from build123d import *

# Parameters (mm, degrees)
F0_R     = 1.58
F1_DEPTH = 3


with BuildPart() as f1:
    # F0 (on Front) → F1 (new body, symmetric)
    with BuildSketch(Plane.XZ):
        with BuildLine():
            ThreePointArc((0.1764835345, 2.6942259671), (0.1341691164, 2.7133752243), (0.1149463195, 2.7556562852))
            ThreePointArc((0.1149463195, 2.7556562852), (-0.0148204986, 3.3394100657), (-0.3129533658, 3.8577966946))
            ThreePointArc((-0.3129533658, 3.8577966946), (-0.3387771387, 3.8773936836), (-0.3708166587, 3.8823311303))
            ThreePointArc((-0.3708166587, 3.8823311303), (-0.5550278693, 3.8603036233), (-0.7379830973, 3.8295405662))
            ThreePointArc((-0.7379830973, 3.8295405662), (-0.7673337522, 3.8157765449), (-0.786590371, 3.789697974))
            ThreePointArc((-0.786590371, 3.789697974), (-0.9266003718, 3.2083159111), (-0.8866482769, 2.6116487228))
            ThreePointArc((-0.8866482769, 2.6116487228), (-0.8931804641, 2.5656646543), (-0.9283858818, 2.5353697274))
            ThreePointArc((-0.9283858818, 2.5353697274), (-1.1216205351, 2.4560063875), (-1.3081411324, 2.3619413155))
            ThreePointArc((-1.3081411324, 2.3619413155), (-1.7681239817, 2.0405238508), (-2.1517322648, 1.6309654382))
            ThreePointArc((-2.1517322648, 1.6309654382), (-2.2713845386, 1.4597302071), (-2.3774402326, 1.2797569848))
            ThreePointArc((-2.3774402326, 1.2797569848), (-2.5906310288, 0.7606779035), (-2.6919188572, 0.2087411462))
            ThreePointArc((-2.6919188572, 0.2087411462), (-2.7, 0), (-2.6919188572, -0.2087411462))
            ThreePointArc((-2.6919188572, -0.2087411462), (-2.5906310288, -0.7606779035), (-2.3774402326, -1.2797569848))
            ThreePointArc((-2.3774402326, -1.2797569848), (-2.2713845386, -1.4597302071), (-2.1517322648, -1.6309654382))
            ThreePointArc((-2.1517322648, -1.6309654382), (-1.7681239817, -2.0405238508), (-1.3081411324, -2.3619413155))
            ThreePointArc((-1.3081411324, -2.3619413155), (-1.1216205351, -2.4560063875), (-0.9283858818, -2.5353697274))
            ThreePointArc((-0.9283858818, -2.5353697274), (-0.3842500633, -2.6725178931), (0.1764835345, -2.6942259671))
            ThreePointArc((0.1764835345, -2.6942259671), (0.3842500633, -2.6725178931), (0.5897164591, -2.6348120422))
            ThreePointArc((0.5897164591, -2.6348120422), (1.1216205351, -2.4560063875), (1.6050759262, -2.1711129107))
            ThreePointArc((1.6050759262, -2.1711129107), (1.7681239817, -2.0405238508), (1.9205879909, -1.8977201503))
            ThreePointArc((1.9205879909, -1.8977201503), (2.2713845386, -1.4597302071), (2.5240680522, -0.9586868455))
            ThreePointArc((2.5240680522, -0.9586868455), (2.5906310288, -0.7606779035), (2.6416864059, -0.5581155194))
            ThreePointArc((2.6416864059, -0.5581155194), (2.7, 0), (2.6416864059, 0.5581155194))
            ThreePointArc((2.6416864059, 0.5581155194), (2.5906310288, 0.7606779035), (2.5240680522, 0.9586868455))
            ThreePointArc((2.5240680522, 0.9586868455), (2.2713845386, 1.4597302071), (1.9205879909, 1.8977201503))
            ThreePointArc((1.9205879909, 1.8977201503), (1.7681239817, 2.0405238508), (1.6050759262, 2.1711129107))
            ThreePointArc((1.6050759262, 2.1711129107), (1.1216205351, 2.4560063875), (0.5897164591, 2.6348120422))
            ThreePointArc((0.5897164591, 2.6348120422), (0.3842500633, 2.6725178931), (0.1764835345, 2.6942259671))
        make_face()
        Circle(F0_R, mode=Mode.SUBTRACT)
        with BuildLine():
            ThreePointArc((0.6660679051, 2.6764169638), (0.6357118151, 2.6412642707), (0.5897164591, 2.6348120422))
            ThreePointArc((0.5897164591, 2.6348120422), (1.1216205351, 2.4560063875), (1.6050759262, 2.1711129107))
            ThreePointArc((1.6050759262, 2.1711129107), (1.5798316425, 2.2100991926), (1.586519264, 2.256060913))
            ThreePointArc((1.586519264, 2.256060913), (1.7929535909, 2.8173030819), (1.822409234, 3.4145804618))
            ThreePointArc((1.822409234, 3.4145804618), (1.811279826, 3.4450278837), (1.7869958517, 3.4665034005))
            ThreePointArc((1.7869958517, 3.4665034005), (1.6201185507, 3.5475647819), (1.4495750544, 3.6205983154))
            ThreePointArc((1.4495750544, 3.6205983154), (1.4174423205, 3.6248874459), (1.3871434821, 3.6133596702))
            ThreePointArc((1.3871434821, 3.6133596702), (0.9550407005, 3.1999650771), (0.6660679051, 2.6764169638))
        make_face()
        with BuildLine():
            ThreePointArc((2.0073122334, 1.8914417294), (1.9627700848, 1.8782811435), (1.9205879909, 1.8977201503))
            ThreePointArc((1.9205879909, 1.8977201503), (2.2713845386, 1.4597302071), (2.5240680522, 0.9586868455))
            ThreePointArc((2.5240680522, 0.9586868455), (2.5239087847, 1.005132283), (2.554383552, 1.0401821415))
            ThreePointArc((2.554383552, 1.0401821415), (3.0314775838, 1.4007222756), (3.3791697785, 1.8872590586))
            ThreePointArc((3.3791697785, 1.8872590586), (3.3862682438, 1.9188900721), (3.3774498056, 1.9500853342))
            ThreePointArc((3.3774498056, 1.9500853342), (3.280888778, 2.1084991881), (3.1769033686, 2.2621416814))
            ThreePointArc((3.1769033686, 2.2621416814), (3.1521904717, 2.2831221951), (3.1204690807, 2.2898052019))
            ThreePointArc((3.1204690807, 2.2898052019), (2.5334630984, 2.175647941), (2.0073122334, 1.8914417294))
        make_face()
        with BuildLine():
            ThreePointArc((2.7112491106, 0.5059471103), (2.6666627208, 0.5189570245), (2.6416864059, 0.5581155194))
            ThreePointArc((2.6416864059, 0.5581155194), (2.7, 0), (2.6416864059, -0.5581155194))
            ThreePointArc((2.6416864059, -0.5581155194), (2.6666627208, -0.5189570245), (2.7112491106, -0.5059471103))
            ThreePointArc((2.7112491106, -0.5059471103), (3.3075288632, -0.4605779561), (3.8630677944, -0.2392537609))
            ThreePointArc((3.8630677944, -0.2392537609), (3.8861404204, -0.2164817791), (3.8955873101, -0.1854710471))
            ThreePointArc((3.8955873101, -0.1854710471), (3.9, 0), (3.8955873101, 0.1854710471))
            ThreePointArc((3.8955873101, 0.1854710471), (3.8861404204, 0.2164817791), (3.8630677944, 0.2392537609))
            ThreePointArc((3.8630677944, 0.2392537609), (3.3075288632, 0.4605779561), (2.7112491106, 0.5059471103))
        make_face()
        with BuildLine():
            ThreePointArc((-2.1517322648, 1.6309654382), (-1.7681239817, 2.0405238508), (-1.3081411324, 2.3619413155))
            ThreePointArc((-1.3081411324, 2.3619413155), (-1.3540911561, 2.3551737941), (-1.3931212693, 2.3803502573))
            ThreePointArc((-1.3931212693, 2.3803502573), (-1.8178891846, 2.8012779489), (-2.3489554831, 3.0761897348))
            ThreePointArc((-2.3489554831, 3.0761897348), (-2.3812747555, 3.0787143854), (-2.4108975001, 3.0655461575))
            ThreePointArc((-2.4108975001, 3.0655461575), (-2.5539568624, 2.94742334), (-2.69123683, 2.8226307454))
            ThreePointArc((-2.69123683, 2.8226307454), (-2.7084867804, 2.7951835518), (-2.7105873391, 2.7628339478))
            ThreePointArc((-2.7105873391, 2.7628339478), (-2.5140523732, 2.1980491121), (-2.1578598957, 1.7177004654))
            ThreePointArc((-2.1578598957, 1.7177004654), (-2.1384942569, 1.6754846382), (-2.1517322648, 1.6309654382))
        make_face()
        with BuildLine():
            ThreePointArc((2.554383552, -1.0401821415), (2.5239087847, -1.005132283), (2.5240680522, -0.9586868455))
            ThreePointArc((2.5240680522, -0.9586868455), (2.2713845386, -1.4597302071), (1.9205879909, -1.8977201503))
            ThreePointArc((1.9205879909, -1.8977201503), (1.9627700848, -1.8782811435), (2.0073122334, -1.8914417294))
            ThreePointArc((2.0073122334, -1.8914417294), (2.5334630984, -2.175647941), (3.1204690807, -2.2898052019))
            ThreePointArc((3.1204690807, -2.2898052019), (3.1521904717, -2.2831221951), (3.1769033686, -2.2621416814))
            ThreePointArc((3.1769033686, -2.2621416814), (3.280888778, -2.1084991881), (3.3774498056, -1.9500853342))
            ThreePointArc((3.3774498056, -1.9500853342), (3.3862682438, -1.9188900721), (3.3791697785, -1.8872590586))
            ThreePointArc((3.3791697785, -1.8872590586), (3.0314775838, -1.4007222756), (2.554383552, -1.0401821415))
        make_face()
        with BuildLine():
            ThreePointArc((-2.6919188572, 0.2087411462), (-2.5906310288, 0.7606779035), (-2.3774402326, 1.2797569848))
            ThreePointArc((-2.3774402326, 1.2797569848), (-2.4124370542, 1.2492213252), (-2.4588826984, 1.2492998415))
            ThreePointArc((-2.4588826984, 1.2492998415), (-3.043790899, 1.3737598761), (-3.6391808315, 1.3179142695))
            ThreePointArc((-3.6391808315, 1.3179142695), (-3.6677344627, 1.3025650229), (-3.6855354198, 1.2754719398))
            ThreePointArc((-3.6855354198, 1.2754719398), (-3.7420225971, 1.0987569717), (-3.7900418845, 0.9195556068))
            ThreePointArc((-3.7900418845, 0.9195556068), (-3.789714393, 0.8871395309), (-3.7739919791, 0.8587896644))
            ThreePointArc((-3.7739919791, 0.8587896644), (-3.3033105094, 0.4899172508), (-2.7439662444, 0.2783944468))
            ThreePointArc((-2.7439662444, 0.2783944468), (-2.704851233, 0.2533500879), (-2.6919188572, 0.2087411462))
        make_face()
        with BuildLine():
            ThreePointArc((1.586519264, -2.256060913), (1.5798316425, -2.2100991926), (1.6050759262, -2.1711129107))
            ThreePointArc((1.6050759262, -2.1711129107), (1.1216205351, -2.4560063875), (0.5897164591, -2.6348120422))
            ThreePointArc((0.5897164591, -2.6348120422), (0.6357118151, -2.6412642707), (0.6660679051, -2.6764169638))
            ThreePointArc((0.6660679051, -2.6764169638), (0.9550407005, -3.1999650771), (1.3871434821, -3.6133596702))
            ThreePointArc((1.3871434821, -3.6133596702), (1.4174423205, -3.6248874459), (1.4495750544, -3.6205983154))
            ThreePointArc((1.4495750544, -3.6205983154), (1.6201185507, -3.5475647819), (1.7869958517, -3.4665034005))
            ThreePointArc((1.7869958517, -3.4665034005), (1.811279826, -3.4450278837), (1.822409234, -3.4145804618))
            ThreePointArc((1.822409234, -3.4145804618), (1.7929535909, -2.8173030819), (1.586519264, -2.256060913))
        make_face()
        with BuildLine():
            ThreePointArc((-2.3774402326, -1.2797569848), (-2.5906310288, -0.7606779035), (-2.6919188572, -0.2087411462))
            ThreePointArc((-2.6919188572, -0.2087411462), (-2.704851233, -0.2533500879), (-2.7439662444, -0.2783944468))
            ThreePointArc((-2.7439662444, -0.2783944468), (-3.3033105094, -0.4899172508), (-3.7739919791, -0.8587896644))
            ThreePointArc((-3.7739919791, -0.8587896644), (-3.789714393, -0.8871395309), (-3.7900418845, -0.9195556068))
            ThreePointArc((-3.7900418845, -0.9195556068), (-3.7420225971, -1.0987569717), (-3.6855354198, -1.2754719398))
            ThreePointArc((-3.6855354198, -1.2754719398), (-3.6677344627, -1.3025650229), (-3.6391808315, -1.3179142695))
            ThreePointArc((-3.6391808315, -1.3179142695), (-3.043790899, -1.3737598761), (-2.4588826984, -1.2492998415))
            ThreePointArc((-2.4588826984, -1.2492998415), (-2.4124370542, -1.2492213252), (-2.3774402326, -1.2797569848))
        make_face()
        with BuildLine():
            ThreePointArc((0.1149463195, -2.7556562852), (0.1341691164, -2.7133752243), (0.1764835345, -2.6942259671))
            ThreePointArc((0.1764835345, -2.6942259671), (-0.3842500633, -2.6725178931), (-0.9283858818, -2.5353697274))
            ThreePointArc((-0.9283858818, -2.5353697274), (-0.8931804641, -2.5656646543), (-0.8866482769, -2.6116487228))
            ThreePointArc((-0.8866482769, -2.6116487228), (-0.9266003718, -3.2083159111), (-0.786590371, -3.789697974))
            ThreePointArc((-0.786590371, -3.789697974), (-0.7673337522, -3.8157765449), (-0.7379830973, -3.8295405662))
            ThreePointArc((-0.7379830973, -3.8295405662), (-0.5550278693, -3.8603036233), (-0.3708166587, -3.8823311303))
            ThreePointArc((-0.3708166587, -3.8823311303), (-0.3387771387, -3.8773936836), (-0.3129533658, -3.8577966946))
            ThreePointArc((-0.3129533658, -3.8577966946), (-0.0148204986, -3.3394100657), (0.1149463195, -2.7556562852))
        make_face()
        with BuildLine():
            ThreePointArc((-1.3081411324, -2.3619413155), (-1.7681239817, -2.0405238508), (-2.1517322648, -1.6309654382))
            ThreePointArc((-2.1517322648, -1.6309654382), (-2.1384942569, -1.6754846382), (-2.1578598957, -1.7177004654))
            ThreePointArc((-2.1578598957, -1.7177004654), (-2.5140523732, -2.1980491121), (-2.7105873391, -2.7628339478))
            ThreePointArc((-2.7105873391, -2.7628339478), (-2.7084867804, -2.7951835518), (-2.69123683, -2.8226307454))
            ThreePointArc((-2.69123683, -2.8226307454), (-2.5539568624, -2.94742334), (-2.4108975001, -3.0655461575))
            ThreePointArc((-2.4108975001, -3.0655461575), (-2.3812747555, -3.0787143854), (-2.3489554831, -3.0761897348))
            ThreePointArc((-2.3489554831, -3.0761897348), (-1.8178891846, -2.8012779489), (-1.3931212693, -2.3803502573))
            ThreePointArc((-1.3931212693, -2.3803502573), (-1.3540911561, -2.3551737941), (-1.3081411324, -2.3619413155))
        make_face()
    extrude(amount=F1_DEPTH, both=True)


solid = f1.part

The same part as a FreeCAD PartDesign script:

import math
import FreeCAD as App
import Part
import Sketcher

doc = App.newDocument("Part")
body = doc.addObject("PartDesign::Body", "Body")

# Sketch on XZ plane
sketch1 = doc.addObject("Sketcher::SketchObject", "Sketch")
body.addObject(sketch1)
sketch1.AttachmentSupport = (doc.XZ_Plane, [""])
sketch1.MapMode = "FlatFace"
sketch1.addGeometry([
    Part.ArcOfCircle(Part.Circle(App.Vector(0.180798, 2.760085, 0), App.Vector(0, 0, 1), 0.066), math.radians(-176.152615), math.radians(-93.747768)),  # 0
    Part.ArcOfCircle(Part.Circle(App.Vector(-1.860591, 2.6228, 0), App.Vector(0, 0, 1), 1.98), math.radians(3.847384), math.radians(38.589447)),  # 1
    Part.ArcOfCircle(Part.Circle(App.Vector(-0.364541, 3.81663, 0), App.Vector(0, 0, 1), 0.066), math.radians(38.589448), math.radians(95.455993)),  # 2
    Part.ArcOfCircle(Part.Circle(App.Vector(0, 0, 0), App.Vector(0, 0, 1), 3.9), math.radians(95.455993), math.radians(100.907643)),  # 3
    Part.ArcOfCircle(Part.Circle(App.Vector(-0.725494, 3.764733, 0), App.Vector(0, 0, 1), 0.066), math.radians(100.907643), math.radians(157.774189)),  # 4
    Part.ArcOfCircle(Part.Circle(App.Vector(1.046296, 3.040747, 0), App.Vector(0, 0, 1), 1.98), math.radians(157.774189), math.radians(192.516252)),  # 5
    Part.ArcOfCircle(Part.Circle(App.Vector(-0.95108, 2.597345, 0), App.Vector(0, 0, 1), 0.066), math.radians(-69.888595), math.radians(12.516252)),  # 6
    Part.ArcOfCircle(Part.Circle(App.Vector(0, 0, 0), App.Vector(0, 0, 1), 2.7), math.radians(110.111405), math.radians(118.979504)),  # 7
    Part.ArcOfCircle(Part.Circle(App.Vector(-1.340118, 2.419678, 0), App.Vector(0, 0, 1), 0.066), math.radians(-143.425342), math.radians(-61.020495)),  # 8
    Part.ArcOfCircle(Part.Circle(App.Vector(-2.983222, 1.200528, 0), App.Vector(0, 0, 1), 1.98), math.radians(36.574657), math.radians(71.31672)),  # 9
    Part.ArcOfCircle(Part.Circle(App.Vector(-2.370098, 3.013668, 0), App.Vector(0, 0, 1), 0.066), math.radians(71.31672), math.radians(128.183266)),  # 10
    Part.ArcOfCircle(Part.Circle(App.Vector(0, 0, 0), App.Vector(0, 0, 1), 3.9), math.radians(128.183266), math.radians(133.634916)),  # 11
    Part.ArcOfCircle(Part.Circle(App.Vector(-2.645693, 2.774863, 0), App.Vector(0, 0, 1), 0.066), math.radians(133.634916), math.radians(190.501461)),  # 12
    Part.ArcOfCircle(Part.Circle(App.Vector(-0.763752, 3.12371, 0), App.Vector(0, 0, 1), 1.98), math.radians(-169.498538), math.radians(-134.756475)),  # 13
    Part.ArcOfCircle(Part.Circle(App.Vector(-2.20433, 1.670833, 0), App.Vector(0, 0, 1), 0.066), math.radians(-37.161322), math.radians(45.243524)),  # 14
    Part.ArcOfCircle(Part.Circle(App.Vector(0, 0, 0), App.Vector(0, 0, 1), 2.7), math.radians(142.838678), math.radians(151.706777)),  # 15
    Part.ArcOfCircle(Part.Circle(App.Vector(-2.435555, 1.31104, 0), App.Vector(0, 0, 1), 0.066), math.radians(-110.69807), math.radians(-28.293224)),  # 16
    Part.ArcOfCircle(Part.Circle(App.Vector(-3.1587, -0.602903, 0), App.Vector(0, 0, 1), 1.98), math.radians(69.30193), math.radians(104.043993)),  # 17
    Part.ArcOfCircle(Part.Circle(App.Vector(-3.623165, 1.253887, 0), App.Vector(0, 0, 1), 0.066), math.radians(104.043994), math.radians(160.910538)),  # 18
    Part.ArcOfCircle(Part.Circle(App.Vector(0, 0, 0), App.Vector(0, 0, 1), 3.9), math.radians(160.910539), math.radians(166.362189)),  # 19
    Part.ArcOfCircle(Part.Circle(App.Vector(-3.725903, 0.903994, 0), App.Vector(0, 0, 1), 0.066), math.radians(166.362189), math.radians(223.228735)),  # 20
    Part.ArcOfCircle(Part.Circle(App.Vector(-2.331314, 2.214917, 0), App.Vector(0, 0, 1), 1.98), math.radians(-136.771265), math.radians(-102.029203)),  # 21
    Part.ArcOfCircle(Part.Circle(App.Vector(-2.757721, 0.213844, 0), App.Vector(0, 0, 1), 0.066), math.radians(-4.434049), math.radians(77.970797)),  # 22
    Part.ArcOfCircle(Part.Circle(App.Vector(0, 0, 0), App.Vector(0, 0, 1), 2.7), math.radians(175.565951), math.radians(184.434049)),  # 23
    Part.ArcOfCircle(Part.Circle(App.Vector(-2.757721, -0.213844, 0), App.Vector(0, 0, 1), 0.066), math.radians(-77.970797), math.radians(4.434049)),  # 24
    Part.ArcOfCircle(Part.Circle(App.Vector(-2.331314, -2.214917, 0), App.Vector(0, 0, 1), 1.98), math.radians(102.029203), math.radians(136.771265)),  # 25
    Part.ArcOfCircle(Part.Circle(App.Vector(-3.725903, -0.903994, 0), App.Vector(0, 0, 1), 0.066), math.radians(136.771265), math.radians(193.637811)),  # 26
    Part.ArcOfCircle(Part.Circle(App.Vector(0, 0, 0), App.Vector(0, 0, 1), 3.9), math.radians(-166.362189), math.radians(-160.910539)),  # 27
    Part.ArcOfCircle(Part.Circle(App.Vector(-3.623165, -1.253887, 0), App.Vector(0, 0, 1), 0.066), math.radians(-160.910538), math.radians(-104.043994)),  # 28
    Part.ArcOfCircle(Part.Circle(App.Vector(-3.1587, 0.602903, 0), App.Vector(0, 0, 1), 1.98), math.radians(-104.043993), math.radians(-69.30193)),  # 29
    Part.ArcOfCircle(Part.Circle(App.Vector(-2.435555, -1.31104, 0), App.Vector(0, 0, 1), 0.066), math.radians(28.293224), math.radians(110.69807)),  # 30
    Part.ArcOfCircle(Part.Circle(App.Vector(0, 0, 0), App.Vector(0, 0, 1), 2.7), math.radians(-151.706777), math.radians(-142.838678)),  # 31
    Part.ArcOfCircle(Part.Circle(App.Vector(-2.20433, -1.670833, 0), App.Vector(0, 0, 1), 0.066), math.radians(-45.243524), math.radians(37.161322)),  # 32
    Part.ArcOfCircle(Part.Circle(App.Vector(-0.763752, -3.12371, 0), App.Vector(0, 0, 1), 1.98), math.radians(134.756475), math.radians(169.498538)),  # 33
    Part.ArcOfCircle(Part.Circle(App.Vector(-2.645693, -2.774863, 0), App.Vector(0, 0, 1), 0.066), math.radians(169.498539), math.radians(226.365084)),  # 34
    Part.ArcOfCircle(Part.Circle(App.Vector(0, 0, 0), App.Vector(0, 0, 1), 3.9), math.radians(-133.634916), math.radians(-128.183266)),  # 35
    Part.ArcOfCircle(Part.Circle(App.Vector(-2.370098, -3.013668, 0), App.Vector(0, 0, 1), 0.066), math.radians(-128.183266), math.radians(-71.31672)),  # 36
    Part.ArcOfCircle(Part.Circle(App.Vector(-2.983222, -1.200528, 0), App.Vector(0, 0, 1), 1.98), math.radians(-71.31672), math.radians(-36.574657)),  # 37
    Part.ArcOfCircle(Part.Circle(App.Vector(-1.340118, -2.419678, 0), App.Vector(0, 0, 1), 0.066), math.radians(61.020495), math.radians(143.425342)),  # 38
    Part.ArcOfCircle(Part.Circle(App.Vector(0, 0, 0), App.Vector(0, 0, 1), 2.7), math.radians(-118.979504), math.radians(-110.111405)),  # 39
    Part.ArcOfCircle(Part.Circle(App.Vector(-0.95108, -2.597345, 0), App.Vector(0, 0, 1), 0.066), math.radians(-12.516252), math.radians(69.888595)),  # 40
    Part.ArcOfCircle(Part.Circle(App.Vector(1.046296, -3.040747, 0), App.Vector(0, 0, 1), 1.98), math.radians(167.483748), math.radians(202.225811)),  # 41
    Part.ArcOfCircle(Part.Circle(App.Vector(-0.725494, -3.764733, 0), App.Vector(0, 0, 1), 0.066), math.radians(-157.774189), math.radians(-100.907643)),  # 42
    Part.ArcOfCircle(Part.Circle(App.Vector(0, 0, 0), App.Vector(0, 0, 1), 3.9), math.radians(-100.907643), math.radians(-95.455993)),  # 43
    Part.ArcOfCircle(Part.Circle(App.Vector(-0.364541, -3.81663, 0), App.Vector(0, 0, 1), 0.066), math.radians(-95.455993), math.radians(-38.589448)),  # 44
    Part.ArcOfCircle(Part.Circle(App.Vector(-1.860591, -2.6228, 0), App.Vector(0, 0, 1), 1.98), math.radians(-38.589447), math.radians(-3.847384)),  # 45
    Part.ArcOfCircle(Part.Circle(App.Vector(0.180798, -2.760085, 0), App.Vector(0, 0, 1), 0.066), math.radians(93.747768), math.radians(176.152615)),  # 46
    Part.ArcOfCircle(Part.Circle(App.Vector(0, 0, 0), App.Vector(0, 0, 1), 2.7), math.radians(-86.252231), math.radians(-77.384132)),  # 47
    Part.ArcOfCircle(Part.Circle(App.Vector(0.604132, -2.699219, 0), App.Vector(0, 0, 1), 0.066), math.radians(20.211021), math.radians(102.615867)),  # 48
    Part.ArcOfCircle(Part.Circle(App.Vector(2.524153, -1.992369, 0), App.Vector(0, 0, 1), 1.98), math.radians(-159.788979), math.radians(-125.046916)),  # 49
    Part.ArcOfCircle(Part.Circle(App.Vector(1.425044, -3.559327, 0), App.Vector(0, 0, 1), 0.066), math.radians(-125.046917), math.radians(-68.18037)),  # 50
    Part.ArcOfCircle(Part.Circle(App.Vector(0, 0, 0), App.Vector(0, 0, 1), 3.9), math.radians(-68.180371), math.radians(-62.72872)),  # 51
    Part.ArcOfCircle(Part.Circle(App.Vector(1.756754, -3.407839, 0), App.Vector(0, 0, 1), 0.066), math.radians(-62.728721), math.radians(-5.862175)),  # 52
    Part.ArcOfCircle(Part.Circle(App.Vector(-0.147236, -3.212352, 0), App.Vector(0, 0, 1), 1.98), math.radians(-5.862175), math.radians(28.879888)),  # 53
    Part.ArcOfCircle(Part.Circle(App.Vector(1.644311, -2.224185, 0), App.Vector(0, 0, 1), 0.066), math.radians(126.475041), math.radians(208.879888)),  # 54
    Part.ArcOfCircle(Part.Circle(App.Vector(0, 0, 0), App.Vector(0, 0, 1), 2.7), math.radians(-53.524958), math.radians(-44.65686)),  # 55
    Part.ArcOfCircle(Part.Circle(App.Vector(1.967536, -1.944109, 0), App.Vector(0, 0, 1), 0.066), math.radians(52.938294), math.radians(135.34314)),  # 56
    Part.ArcOfCircle(Part.Circle(App.Vector(3.200608, -0.311428, 0), App.Vector(0, 0, 1), 1.98), math.radians(-127.061706), math.radians(-92.319644)),  # 57
    Part.ArcOfCircle(Part.Circle(App.Vector(3.12314, -2.223859, 0), App.Vector(0, 0, 1), 0.066), math.radians(-92.319643), math.radians(-35.453098)),  # 58
    Part.ArcOfCircle(Part.Circle(App.Vector(0, 0, 0), App.Vector(0, 0, 1), 3.9), math.radians(-35.453098), math.radians(-30.001448)),  # 59
    Part.ArcOfCircle(Part.Circle(App.Vector(3.320293, -1.917084, 0), App.Vector(0, 0, 1), 0.066), math.radians(-30.001447), math.radians(26.865098)),  # 60
    Part.ArcOfCircle(Part.Circle(App.Vector(1.612865, -2.782004, 0), App.Vector(0, 0, 1), 1.98), math.radians(26.865098), math.radians(61.607161)),  # 61
    Part.ArcOfCircle(Part.Circle(App.Vector(2.585767, -0.982121, 0), App.Vector(0, 0, 1), 0.066), math.radians(159.202315), math.radians(241.607161)),  # 62
    Part.ArcOfCircle(Part.Circle(App.Vector(0, 0, 0), App.Vector(0, 0, 1), 2.7), math.radians(-20.797686), math.radians(-11.929587)),  # 63
    Part.ArcOfCircle(Part.Circle(App.Vector(2.706261, -0.571758, 0), App.Vector(0, 0, 1), 0.066), math.radians(85.665566), math.radians(168.070413)),  # 64
    Part.ArcOfCircle(Part.Circle(App.Vector(2.860894, 1.46839, 0), App.Vector(0, 0, 1), 1.98), math.radians(-94.334434), math.radians(-59.592371)),  # 65
    Part.ArcOfCircle(Part.Circle(App.Vector(3.829662, -0.182332, 0), App.Vector(0, 0, 1), 0.066), math.radians(-59.592371), math.radians(-2.725825)),  # 66
    Part.ArcOfCircle(Part.Circle(App.Vector(0, 0, 0), App.Vector(0, 0, 1), 3.9), math.radians(-2.725825), math.radians(2.725825)),  # 67
    Part.ArcOfCircle(Part.Circle(App.Vector(3.829662, 0.182332, 0), App.Vector(0, 0, 1), 0.066), math.radians(2.725825), math.radians(59.592371)),  # 68
    Part.ArcOfCircle(Part.Circle(App.Vector(2.860894, -1.46839, 0), App.Vector(0, 0, 1), 1.98), math.radians(59.592371), math.radians(94.334434)),  # 69
    Part.ArcOfCircle(Part.Circle(App.Vector(2.706261, 0.571758, 0), App.Vector(0, 0, 1), 0.066), math.radians(-168.070413), math.radians(-85.665566)),  # 70
    Part.ArcOfCircle(Part.Circle(App.Vector(0, 0, 0), App.Vector(0, 0, 1), 2.7), math.radians(11.929587), math.radians(20.797686)),  # 71
    Part.ArcOfCircle(Part.Circle(App.Vector(2.585767, 0.982121, 0), App.Vector(0, 0, 1), 0.066), math.radians(118.392839), math.radians(200.797685)),  # 72
    Part.ArcOfCircle(Part.Circle(App.Vector(1.612865, 2.782004, 0), App.Vector(0, 0, 1), 1.98), math.radians(-61.607161), math.radians(-26.865098)),  # 73
    Part.ArcOfCircle(Part.Circle(App.Vector(3.320293, 1.917084, 0), App.Vector(0, 0, 1), 0.066), math.radians(-26.865098), math.radians(30.001447)),  # 74
    Part.ArcOfCircle(Part.Circle(App.Vector(0, 0, 0), App.Vector(0, 0, 1), 3.9), math.radians(30.001448), math.radians(35.453098)),  # 75
    Part.ArcOfCircle(Part.Circle(App.Vector(3.12314, 2.223859, 0), App.Vector(0, 0, 1), 0.066), math.radians(35.453098), math.radians(92.319643)),  # 76
    Part.ArcOfCircle(Part.Circle(App.Vector(3.200608, 0.311428, 0), App.Vector(0, 0, 1), 1.98), math.radians(92.319644), math.radians(127.061706)),  # 77
    Part.ArcOfCircle(Part.Circle(App.Vector(1.967536, 1.944109, 0), App.Vector(0, 0, 1), 0.066), math.radians(-135.34314), math.radians(-52.938294)),  # 78
    Part.ArcOfCircle(Part.Circle(App.Vector(0, 0, 0), App.Vector(0, 0, 1), 2.7), math.radians(44.65686), math.radians(53.524958)),  # 79
    Part.ArcOfCircle(Part.Circle(App.Vector(1.644311, 2.224185, 0), App.Vector(0, 0, 1), 0.066), math.radians(151.120112), math.radians(233.524959)),  # 80
    Part.ArcOfCircle(Part.Circle(App.Vector(-0.147236, 3.212352, 0), App.Vector(0, 0, 1), 1.98), math.radians(-28.879888), math.radians(5.862175)),  # 81
    Part.ArcOfCircle(Part.Circle(App.Vector(1.756754, 3.407839, 0), App.Vector(0, 0, 1), 0.066), math.radians(5.862175), math.radians(62.728721)),  # 82
    Part.ArcOfCircle(Part.Circle(App.Vector(0, 0, 0), App.Vector(0, 0, 1), 3.9), math.radians(62.72872), math.radians(68.180371)),  # 83
    Part.ArcOfCircle(Part.Circle(App.Vector(1.425044, 3.559327, 0), App.Vector(0, 0, 1), 0.066), math.radians(68.18037), math.radians(125.046917)),  # 84
    Part.ArcOfCircle(Part.Circle(App.Vector(2.524153, 1.992369, 0), App.Vector(0, 0, 1), 1.98), math.radians(125.046916), math.radians(159.788979)),  # 85
    Part.ArcOfCircle(Part.Circle(App.Vector(0.604132, 2.699219, 0), App.Vector(0, 0, 1), 0.066), math.radians(-102.615867), math.radians(-20.211021)),  # 86
    Part.ArcOfCircle(Part.Circle(App.Vector(0, 0, 0), App.Vector(0, 0, 1), 2.7), math.radians(77.384132), math.radians(86.252231)),  # 87
    Part.Circle(App.Vector(0, 0, 0), App.Vector(0, 0, 1), 1.58),  # 88
], False)
sketch1.addConstraint([
    Sketcher.Constraint("Tangent", 0, 1, 1, 1),
    Sketcher.Constraint("Tangent", 1, 2, 2, 1),
    Sketcher.Constraint("Tangent", 2, 2, 3, 1),
    Sketcher.Constraint("Tangent", 3, 2, 4, 1),
    Sketcher.Constraint("Tangent", 4, 2, 5, 1),
    Sketcher.Constraint("Tangent", 5, 2, 6, 2),
    Sketcher.Constraint("Tangent", 6, 1, 7, 1),
    Sketcher.Constraint("Tangent", 7, 2, 8, 2),
    Sketcher.Constraint("Tangent", 8, 1, 9, 1),
    Sketcher.Constraint("Tangent", 9, 2, 10, 1),
    Sketcher.Constraint("Tangent", 10, 2, 11, 1),
    Sketcher.Constraint("Tangent", 11, 2, 12, 1),
    Sketcher.Constraint("Tangent", 12, 2, 13, 1),
    Sketcher.Constraint("Tangent", 13, 2, 14, 2),
    Sketcher.Constraint("Tangent", 14, 1, 15, 1),
    Sketcher.Constraint("Tangent", 15, 2, 16, 2),
    Sketcher.Constraint("Tangent", 16, 1, 17, 1),
    Sketcher.Constraint("Tangent", 17, 2, 18, 1),
    Sketcher.Constraint("Tangent", 18, 2, 19, 1),
    Sketcher.Constraint("Tangent", 19, 2, 20, 1),
    Sketcher.Constraint("Tangent", 20, 2, 21, 1),
    Sketcher.Constraint("Tangent", 21, 2, 22, 2),
    Sketcher.Constraint("Tangent", 22, 1, 23, 1),
    Sketcher.Constraint("Tangent", 23, 2, 24, 2),
    Sketcher.Constraint("Tangent", 24, 1, 25, 1),
    Sketcher.Constraint("Tangent", 25, 2, 26, 1),
    Sketcher.Constraint("Tangent", 26, 2, 27, 1),
    Sketcher.Constraint("Tangent", 27, 2, 28, 1),
    Sketcher.Constraint("Tangent", 28, 2, 29, 1),
    Sketcher.Constraint("Tangent", 29, 2, 30, 2),
    Sketcher.Constraint("Tangent", 30, 1, 31, 1),
    Sketcher.Constraint("Tangent", 31, 2, 32, 2),
    Sketcher.Constraint("Tangent", 32, 1, 33, 1),
    Sketcher.Constraint("Tangent", 33, 2, 34, 1),
    Sketcher.Constraint("Tangent", 34, 2, 35, 1),
    Sketcher.Constraint("Tangent", 35, 2, 36, 1),
    Sketcher.Constraint("Tangent", 36, 2, 37, 1),
    Sketcher.Constraint("Tangent", 37, 2, 38, 2),
    Sketcher.Constraint("Tangent", 38, 1, 39, 1),
    Sketcher.Constraint("Tangent", 39, 2, 40, 2),
    Sketcher.Constraint("Tangent", 40, 1, 41, 1),
    Sketcher.Constraint("Tangent", 41, 2, 42, 1),
    Sketcher.Constraint("Tangent", 42, 2, 43, 1),
    Sketcher.Constraint("Tangent", 43, 2, 44, 1),
    Sketcher.Constraint("Tangent", 44, 2, 45, 1),
    Sketcher.Constraint("Tangent", 45, 2, 46, 2),
    Sketcher.Constraint("Tangent", 46, 1, 47, 1),
    Sketcher.Constraint("Tangent", 47, 2, 48, 2),
    Sketcher.Constraint("Tangent", 48, 1, 49, 1),
    Sketcher.Constraint("Tangent", 49, 2, 50, 1),
    Sketcher.Constraint("Tangent", 50, 2, 51, 1),
    Sketcher.Constraint("Tangent", 51, 2, 52, 1),
    Sketcher.Constraint("Tangent", 52, 2, 53, 1),
    Sketcher.Constraint("Tangent", 53, 2, 54, 2),
    Sketcher.Constraint("Tangent", 54, 1, 55, 1),
    Sketcher.Constraint("Tangent", 55, 2, 56, 2),
    Sketcher.Constraint("Tangent", 56, 1, 57, 1),
    Sketcher.Constraint("Tangent", 57, 2, 58, 1),
    Sketcher.Constraint("Tangent", 58, 2, 59, 1),
    Sketcher.Constraint("Tangent", 59, 2, 60, 1),
    Sketcher.Constraint("Tangent", 60, 2, 61, 1),
    Sketcher.Constraint("Tangent", 61, 2, 62, 2),
    Sketcher.Constraint("Tangent", 62, 1, 63, 1),
    Sketcher.Constraint("Tangent", 63, 2, 64, 2),
    Sketcher.Constraint("Tangent", 64, 1, 65, 1),
    Sketcher.Constraint("Tangent", 65, 2, 66, 1),
    Sketcher.Constraint("Tangent", 66, 2, 67, 1),
    Sketcher.Constraint("Tangent", 67, 2, 68, 1),
    Sketcher.Constraint("Tangent", 68, 2, 69, 1),
    Sketcher.Constraint("Tangent", 69, 2, 70, 2),
    Sketcher.Constraint("Tangent", 70, 1, 71, 1),
    Sketcher.Constraint("Tangent", 71, 2, 72, 2),
    Sketcher.Constraint("Tangent", 72, 1, 73, 1),
    Sketcher.Constraint("Tangent", 73, 2, 74, 1),
    Sketcher.Constraint("Tangent", 74, 2, 75, 1),
    Sketcher.Constraint("Tangent", 75, 2, 76, 1),
    Sketcher.Constraint("Tangent", 76, 2, 77, 1),
    Sketcher.Constraint("Tangent", 77, 2, 78, 2),
    Sketcher.Constraint("Tangent", 78, 1, 79, 1),
    Sketcher.Constraint("Tangent", 79, 2, 80, 2),
    Sketcher.Constraint("Tangent", 80, 1, 81, 1),
    Sketcher.Constraint("Tangent", 81, 2, 82, 1),
    Sketcher.Constraint("Tangent", 82, 2, 83, 1),
    Sketcher.Constraint("Tangent", 83, 2, 84, 1),
    Sketcher.Constraint("Tangent", 84, 2, 85, 1),
    Sketcher.Constraint("Tangent", 85, 2, 86, 2),
    Sketcher.Constraint("Tangent", 86, 1, 87, 1),
    Sketcher.Constraint("Tangent", 87, 2, 0, 2),
    Sketcher.Constraint("Coincident", 3, 3, -1, 1),
    Sketcher.Constraint("Coincident", 7, 3, -1, 1),
    Sketcher.Constraint("Coincident", 11, 3, -1, 1),
    Sketcher.Constraint("Coincident", 15, 3, -1, 1),
    Sketcher.Constraint("Coincident", 19, 3, -1, 1),
    Sketcher.Constraint("Coincident", 23, 3, -1, 1),
    Sketcher.Constraint("Coincident", 27, 3, -1, 1),
    Sketcher.Constraint("Coincident", 31, 3, -1, 1),
    Sketcher.Constraint("Coincident", 35, 3, -1, 1),
    Sketcher.Constraint("Coincident", 39, 3, -1, 1),
    Sketcher.Constraint("Coincident", 43, 3, -1, 1),
    Sketcher.Constraint("Coincident", 47, 3, -1, 1),
    Sketcher.Constraint("Coincident", 51, 3, -1, 1),
    Sketcher.Constraint("Coincident", 55, 3, -1, 1),
    Sketcher.Constraint("Coincident", 59, 3, -1, 1),
    Sketcher.Constraint("Coincident", 63, 3, -1, 1),
    Sketcher.Constraint("Coincident", 67, 3, -1, 1),
    Sketcher.Constraint("Coincident", 71, 3, -1, 1),
    Sketcher.Constraint("Coincident", 75, 3, -1, 1),
    Sketcher.Constraint("Coincident", 79, 3, -1, 1),
    Sketcher.Constraint("Coincident", 83, 3, -1, 1),
    Sketcher.Constraint("Coincident", 87, 3, -1, 1),
    Sketcher.Constraint("Coincident", 88, 3, -1, 1),
    Sketcher.Constraint("Equal", 0, 2),
    Sketcher.Constraint("Equal", 2, 4),
    Sketcher.Constraint("Equal", 1, 5),
    Sketcher.Constraint("Equal", 4, 6),
    Sketcher.Constraint("Equal", 6, 8),
    Sketcher.Constraint("Equal", 5, 9),
    Sketcher.Constraint("Equal", 8, 10),
    Sketcher.Constraint("Equal", 3, 11),
    Sketcher.Constraint("Equal", 10, 12),
    Sketcher.Constraint("Equal", 9, 13),
    Sketcher.Constraint("Equal", 12, 14),
    Sketcher.Constraint("Equal", 7, 15),
    Sketcher.Constraint("Equal", 14, 16),
    Sketcher.Constraint("Equal", 13, 17),
    Sketcher.Constraint("Equal", 16, 18),
    Sketcher.Constraint("Equal", 11, 19),
    Sketcher.Constraint("Equal", 18, 20),
    Sketcher.Constraint("Equal", 17, 21),
    Sketcher.Constraint("Equal", 20, 22),
    Sketcher.Constraint("Equal", 15, 23),
    Sketcher.Constraint("Equal", 22, 24),
    Sketcher.Constraint("Equal", 21, 25),
    Sketcher.Constraint("Equal", 24, 26),
    Sketcher.Constraint("Equal", 19, 27),
    Sketcher.Constraint("Equal", 26, 28),
    Sketcher.Constraint("Equal", 25, 29),
    Sketcher.Constraint("Equal", 28, 30),
    Sketcher.Constraint("Equal", 23, 31),
    Sketcher.Constraint("Equal", 30, 32),
    Sketcher.Constraint("Equal", 29, 33),
    Sketcher.Constraint("Equal", 32, 34),
    Sketcher.Constraint("Equal", 27, 35),
    Sketcher.Constraint("Equal", 34, 36),
    Sketcher.Constraint("Equal", 33, 37),
    Sketcher.Constraint("Equal", 36, 38),
    Sketcher.Constraint("Equal", 31, 39),
    Sketcher.Constraint("Equal", 38, 40),
    Sketcher.Constraint("Equal", 37, 41),
    Sketcher.Constraint("Equal", 40, 42),
    Sketcher.Constraint("Equal", 35, 43),
    Sketcher.Constraint("Equal", 42, 44),
    Sketcher.Constraint("Equal", 41, 45),
    Sketcher.Constraint("Equal", 44, 46),
    Sketcher.Constraint("Equal", 39, 47),
    Sketcher.Constraint("Equal", 46, 48),
    Sketcher.Constraint("Equal", 45, 49),
    Sketcher.Constraint("Equal", 48, 50),
    Sketcher.Constraint("Equal", 43, 51),
    Sketcher.Constraint("Equal", 50, 52),
    Sketcher.Constraint("Equal", 49, 53),
    Sketcher.Constraint("Equal", 52, 54),
    Sketcher.Constraint("Equal", 47, 55),
    Sketcher.Constraint("Equal", 54, 56),
    Sketcher.Constraint("Equal", 53, 57),
    Sketcher.Constraint("Equal", 56, 58),
    Sketcher.Constraint("Equal", 51, 59),
    Sketcher.Constraint("Equal", 58, 60),
    Sketcher.Constraint("Equal", 57, 61),
    Sketcher.Constraint("Equal", 60, 62),
    Sketcher.Constraint("Equal", 55, 63),
    Sketcher.Constraint("Equal", 62, 64),
    Sketcher.Constraint("Equal", 61, 65),
    Sketcher.Constraint("Equal", 64, 66),
    Sketcher.Constraint("Equal", 59, 67),
    Sketcher.Constraint("Equal", 66, 68),
    Sketcher.Constraint("Equal", 65, 69),
    Sketcher.Constraint("Equal", 68, 70),
    Sketcher.Constraint("Equal", 63, 71),
    Sketcher.Constraint("Equal", 70, 72),
    Sketcher.Constraint("Equal", 69, 73),
    Sketcher.Constraint("Equal", 72, 74),
    Sketcher.Constraint("Equal", 67, 75),
    Sketcher.Constraint("Equal", 74, 76),
    Sketcher.Constraint("Equal", 73, 77),
    Sketcher.Constraint("Equal", 76, 78),
    Sketcher.Constraint("Equal", 71, 79),
    Sketcher.Constraint("Equal", 78, 80),
    Sketcher.Constraint("Equal", 77, 81),
    Sketcher.Constraint("Equal", 80, 82),
    Sketcher.Constraint("Equal", 75, 83),
    Sketcher.Constraint("Equal", 82, 84),
    Sketcher.Constraint("Equal", 81, 85),
    Sketcher.Constraint("Equal", 84, 86),
    Sketcher.Constraint("Equal", 79, 87),
    Sketcher.Constraint("Symmetric", 21, 3, 25, 3, -1),
    Sketcher.Constraint("Symmetric", 17, 3, 29, 3, -1),
    Sketcher.Constraint("Symmetric", 13, 3, 33, 3, -1),
    Sketcher.Constraint("Symmetric", 9, 3, 37, 3, -1),
    Sketcher.Constraint("Symmetric", 5, 3, 41, 3, -1),
    Sketcher.Constraint("Symmetric", 1, 3, 45, 3, -1),
    Sketcher.Constraint("Symmetric", 65, 3, 69, 3, -1),
    Sketcher.Constraint("Symmetric", 61, 3, 73, 3, -1),
    Sketcher.Constraint("Symmetric", 57, 3, 77, 3, -1),
    Sketcher.Constraint("Symmetric", 53, 3, 81, 3, -1),
    Sketcher.Constraint("Symmetric", 49, 3, 85, 3, -1),
    Sketcher.Constraint("Radius", 3, 3.9),
    Sketcher.Constraint("Radius", 7, 2.7),
    Sketcher.Constraint("Diameter", 88, 3.16),
    Sketcher.Constraint("Radius", 1, 1.98),
    Sketcher.Constraint("Radius", 0, 0.066),
    Sketcher.Constraint("DistanceY", -1, 1, 1, 3, 2.6228),
    Sketcher.Constraint("DistanceX", 17, 3, -1, 1, 3.1587),
    Sketcher.Constraint("DistanceY", -1, 1, 13, 2, 1.7177),
    Sketcher.Constraint("DistanceY", -1, 1, 16, 1, 1.2493),
    Sketcher.Constraint("DistanceY", 50, 2, -1, 1, 3.620598),
    Sketcher.Constraint("DistanceX", 1, 3, -1, 1, 1.860591),
    Sketcher.Constraint("DistanceX", 6, 3, -1, 1, 0.95108),
    Sketcher.Constraint("DistanceX", 9, 3, -1, 1, 2.983222),
    Sketcher.Constraint("DistanceY", -1, 1, 9, 3, 1.200528),
    Sketcher.Constraint("DistanceX", 13, 3, -1, 1, 0.763752),
    Sketcher.Constraint("DistanceX", 22, 3, -1, 1, 2.757721),
    Sketcher.Constraint("DistanceX", -1, 1, 48, 3, 0.604132),
    Sketcher.Constraint("DistanceY", 52, 3, -1, 1, 3.407839),
    Sketcher.Constraint("DistanceY", 53, 3, -1, 1, 3.212352),
    Sketcher.Constraint("DistanceY", 56, 3, -1, 1, 1.944109),
    Sketcher.Constraint("DistanceX", -1, 1, 57, 3, 3.200608),
    Sketcher.Constraint("DistanceY", 62, 3, -1, 1, 0.982121),
    Sketcher.Constraint("DistanceX", -1, 1, 64, 3, 2.706261),
    Sketcher.Constraint("DistanceY", -1, 1, 65, 3, 1.46839),
    Sketcher.Constraint("DistanceY", -1, 1, 3, 2, 3.829541),
    Sketcher.Constraint("DistanceX", 19, 2, -1, 1, 3.790042),
    Sketcher.Constraint("DistanceX", -1, 1, 59, 2, 3.37745),
])
pad1 = doc.addObject("PartDesign::Pad", "Pad")
body.addObject(pad1)
pad1.Profile = sketch1
pad1.Length = 6
pad1.Midplane = True

doc.recompute()
